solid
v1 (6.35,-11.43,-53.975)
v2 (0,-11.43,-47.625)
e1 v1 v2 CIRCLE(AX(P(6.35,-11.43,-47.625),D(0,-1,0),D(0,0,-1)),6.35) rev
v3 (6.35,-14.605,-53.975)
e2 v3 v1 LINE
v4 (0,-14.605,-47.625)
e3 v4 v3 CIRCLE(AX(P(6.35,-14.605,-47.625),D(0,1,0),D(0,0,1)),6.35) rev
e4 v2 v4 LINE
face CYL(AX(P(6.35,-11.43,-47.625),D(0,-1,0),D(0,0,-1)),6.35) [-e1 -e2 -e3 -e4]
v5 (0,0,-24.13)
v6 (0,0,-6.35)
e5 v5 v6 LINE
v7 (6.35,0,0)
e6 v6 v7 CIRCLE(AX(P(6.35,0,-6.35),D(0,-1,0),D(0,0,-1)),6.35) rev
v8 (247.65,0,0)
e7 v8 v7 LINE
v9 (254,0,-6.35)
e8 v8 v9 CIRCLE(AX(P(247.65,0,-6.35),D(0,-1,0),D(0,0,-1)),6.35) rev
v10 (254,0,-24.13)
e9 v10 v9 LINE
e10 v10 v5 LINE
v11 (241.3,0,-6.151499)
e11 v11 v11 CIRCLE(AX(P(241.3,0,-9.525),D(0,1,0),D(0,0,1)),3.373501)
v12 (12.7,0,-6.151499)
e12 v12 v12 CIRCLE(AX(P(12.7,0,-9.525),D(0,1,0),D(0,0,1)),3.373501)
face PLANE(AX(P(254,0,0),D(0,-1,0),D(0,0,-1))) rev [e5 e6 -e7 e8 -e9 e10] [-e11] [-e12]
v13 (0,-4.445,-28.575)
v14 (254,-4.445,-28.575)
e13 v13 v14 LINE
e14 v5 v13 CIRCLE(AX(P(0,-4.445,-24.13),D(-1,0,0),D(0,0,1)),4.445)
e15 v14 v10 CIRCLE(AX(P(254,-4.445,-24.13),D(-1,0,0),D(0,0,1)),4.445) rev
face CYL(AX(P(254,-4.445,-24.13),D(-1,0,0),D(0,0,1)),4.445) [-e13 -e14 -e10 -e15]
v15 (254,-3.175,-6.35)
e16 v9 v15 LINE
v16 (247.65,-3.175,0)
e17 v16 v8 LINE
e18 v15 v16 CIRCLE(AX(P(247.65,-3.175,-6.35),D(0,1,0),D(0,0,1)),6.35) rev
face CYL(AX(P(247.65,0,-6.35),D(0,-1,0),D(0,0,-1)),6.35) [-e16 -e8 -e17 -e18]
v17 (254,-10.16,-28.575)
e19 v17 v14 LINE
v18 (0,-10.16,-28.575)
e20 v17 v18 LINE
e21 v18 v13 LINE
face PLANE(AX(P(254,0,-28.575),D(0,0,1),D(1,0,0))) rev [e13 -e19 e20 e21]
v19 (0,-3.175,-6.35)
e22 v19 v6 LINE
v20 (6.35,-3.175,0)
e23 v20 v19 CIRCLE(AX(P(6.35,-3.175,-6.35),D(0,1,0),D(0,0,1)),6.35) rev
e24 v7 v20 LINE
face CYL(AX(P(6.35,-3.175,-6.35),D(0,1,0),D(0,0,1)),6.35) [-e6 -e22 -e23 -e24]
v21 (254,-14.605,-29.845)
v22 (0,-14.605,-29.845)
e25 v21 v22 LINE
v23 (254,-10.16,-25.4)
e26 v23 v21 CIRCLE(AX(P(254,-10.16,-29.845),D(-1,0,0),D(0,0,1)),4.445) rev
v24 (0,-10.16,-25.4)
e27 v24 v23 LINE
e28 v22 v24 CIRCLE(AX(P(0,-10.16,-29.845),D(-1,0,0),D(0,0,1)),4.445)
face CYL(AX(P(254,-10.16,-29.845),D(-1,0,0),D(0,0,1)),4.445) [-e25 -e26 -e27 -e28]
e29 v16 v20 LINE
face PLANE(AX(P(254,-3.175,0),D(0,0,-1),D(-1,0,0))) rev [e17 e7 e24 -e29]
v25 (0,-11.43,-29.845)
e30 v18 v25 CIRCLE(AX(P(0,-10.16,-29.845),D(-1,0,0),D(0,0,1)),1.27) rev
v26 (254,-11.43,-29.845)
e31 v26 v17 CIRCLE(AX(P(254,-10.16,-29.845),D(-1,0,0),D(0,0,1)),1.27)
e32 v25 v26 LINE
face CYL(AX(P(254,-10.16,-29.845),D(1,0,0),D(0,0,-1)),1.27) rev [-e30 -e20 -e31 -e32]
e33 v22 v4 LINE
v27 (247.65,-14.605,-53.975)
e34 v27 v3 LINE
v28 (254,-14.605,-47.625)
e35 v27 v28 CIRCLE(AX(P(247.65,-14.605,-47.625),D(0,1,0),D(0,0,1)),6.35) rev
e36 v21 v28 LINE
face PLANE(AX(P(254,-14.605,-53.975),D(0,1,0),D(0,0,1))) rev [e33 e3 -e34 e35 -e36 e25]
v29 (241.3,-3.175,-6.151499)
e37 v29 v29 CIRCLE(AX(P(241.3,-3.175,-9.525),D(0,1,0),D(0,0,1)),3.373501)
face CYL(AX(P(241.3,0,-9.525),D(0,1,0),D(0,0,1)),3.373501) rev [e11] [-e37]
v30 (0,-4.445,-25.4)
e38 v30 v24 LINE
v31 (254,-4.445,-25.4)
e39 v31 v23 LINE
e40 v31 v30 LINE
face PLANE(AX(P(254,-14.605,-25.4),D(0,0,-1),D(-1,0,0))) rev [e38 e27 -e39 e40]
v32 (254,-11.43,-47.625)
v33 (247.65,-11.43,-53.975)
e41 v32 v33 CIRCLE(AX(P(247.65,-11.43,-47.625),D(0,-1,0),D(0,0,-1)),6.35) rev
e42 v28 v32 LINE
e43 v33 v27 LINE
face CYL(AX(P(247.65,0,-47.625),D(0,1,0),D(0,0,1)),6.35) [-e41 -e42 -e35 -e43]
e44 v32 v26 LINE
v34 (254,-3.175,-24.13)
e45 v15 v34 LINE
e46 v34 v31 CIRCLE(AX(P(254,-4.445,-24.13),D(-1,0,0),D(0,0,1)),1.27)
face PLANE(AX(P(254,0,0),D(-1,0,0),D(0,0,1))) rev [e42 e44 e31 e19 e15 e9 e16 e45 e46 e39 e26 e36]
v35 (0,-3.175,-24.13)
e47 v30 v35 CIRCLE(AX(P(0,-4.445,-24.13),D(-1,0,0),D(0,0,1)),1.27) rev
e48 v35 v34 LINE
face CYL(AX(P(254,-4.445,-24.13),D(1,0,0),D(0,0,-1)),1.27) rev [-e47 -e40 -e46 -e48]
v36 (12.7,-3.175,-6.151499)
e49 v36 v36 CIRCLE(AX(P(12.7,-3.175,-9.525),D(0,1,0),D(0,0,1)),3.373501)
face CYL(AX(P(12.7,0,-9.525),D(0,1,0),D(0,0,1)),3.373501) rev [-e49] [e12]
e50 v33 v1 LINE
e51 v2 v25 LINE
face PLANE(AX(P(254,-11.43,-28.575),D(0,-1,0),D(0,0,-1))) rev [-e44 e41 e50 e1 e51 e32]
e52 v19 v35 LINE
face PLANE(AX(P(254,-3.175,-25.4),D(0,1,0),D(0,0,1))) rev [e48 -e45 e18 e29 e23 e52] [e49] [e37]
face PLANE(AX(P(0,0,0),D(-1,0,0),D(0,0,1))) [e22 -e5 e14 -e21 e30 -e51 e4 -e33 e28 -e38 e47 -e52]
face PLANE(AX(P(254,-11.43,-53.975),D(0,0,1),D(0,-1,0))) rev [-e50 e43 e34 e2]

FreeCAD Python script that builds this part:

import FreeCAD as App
import Part
import Sketcher
from FreeCAD import Vector
Q = App.Units.Quantity


def edges_at(feature, points):
    """Names of the edges that pass closest to the given points."""
    edges = feature.Shape.Edges
    near = lambda p: min(range(len(edges)), key=lambda i: edges[i].distToShape(Part.Vertex(*p))[0])
    return sorted({f"Edge{near(p) + 1}" for p in points})

doc = App.newDocument("Part")
params = doc.addObject("Spreadsheet::Sheet", "Params")
for row, (alias, value) in enumerate([
    ("sketch1_height", "1 in"),
    ("sketch1_width", "0.45 in"),
    ("sketch1_width2", "0.125 in"),
    ("sketch1_height2", "1.125 in"),
    ("pad1_length", "10 in"),
    ("fillet_radius", "0.05 in"),
    ("fillet2_radius", "0.175 in"),
    ("hole_diameter", "6.747002 mm"),
    ("fillet3_radius", "0.25 in"),
], start=1):
    params.set(f"A{row}", alias)
    params.set(f"B{row}", "=" + value)
    params.setAlias(f"B{row}", alias)

body = doc.addObject("PartDesign::Body", "Body")

# Sketch on YZ plane
sketch1 = body.newObject("Sketcher::SketchObject", "Sketch")
sketch1.AttachmentSupport = (doc.getObject("YZ_Plane"), [""])
sketch1.MapMode = "FlatFace"
sketch1.addGeometry([
    Part.LineSegment(Vector(0, -28.575, 0), Vector(0, 0, 0)),  # 0
    Part.LineSegment(Vector(0, 0, 0), Vector(-3.175, 0, 0)),  # 1
    Part.LineSegment(Vector(-3.175, 0, 0), Vector(-3.175, -25.4, 0)),  # 2
    Part.LineSegment(Vector(-3.175, -25.4, 0), Vector(-14.605, -25.4, 0)),  # 3
    Part.LineSegment(Vector(-14.605, -25.4, 0), Vector(-14.605, -53.975, 0)),  # 4
    Part.LineSegment(Vector(-14.605, -53.975, 0), Vector(-11.43, -53.975, 0)),  # 5
    Part.LineSegment(Vector(-11.43, -53.975, 0), Vector(-11.43, -28.575, 0)),  # 6
    Part.LineSegment(Vector(-11.43, -28.575, 0), Vector(0, -28.575, 0)),  # 7
], False)
sketch1.addConstraint([
    Sketcher.Constraint("Coincident", 0, 2, 1, 1),
    Sketcher.Constraint("Coincident", 1, 2, 2, 1),
    Sketcher.Constraint("Coincident", 2, 2, 3, 1),
    Sketcher.Constraint("Coincident", 3, 2, 4, 1),
    Sketcher.Constraint("Coincident", 4, 2, 5, 1),
    Sketcher.Constraint("Coincident", 5, 2, 6, 1),
    Sketcher.Constraint("Coincident", 6, 2, 7, 1),
    Sketcher.Constraint("Coincident", 7, 2, 0, 1),
    Sketcher.Constraint("Vertical", 0),
    Sketcher.Constraint("Horizontal", 1),
    Sketcher.Constraint("Vertical", 2),
    Sketcher.Constraint("Horizontal", 3),
    Sketcher.Constraint("Vertical", 4),
    Sketcher.Constraint("Horizontal", 5),
    Sketcher.Constraint("Vertical", 6),
    Sketcher.Constraint("Horizontal", 7),
    Sketcher.Constraint("Coincident", 0, 2, -1, 1),
    Sketcher.Constraint("Equal", 1, 5),
    Sketcher.Constraint("Equal", 0, 4),
    Sketcher.Constraint("DistanceY", 2, 2, 2, 1, Q("1 in")),
    Sketcher.Constraint("DistanceX", 3, 2, 3, 1, Q("0.45 in")),
    Sketcher.Constraint("DistanceX", 1, 2, 1, 1, Q("0.125 in")),
    Sketcher.Constraint("DistanceY", 0, 1, 0, 2, Q("1.125 in")),
])
sketch1.setExpression("Constraints[19]", "Params.sketch1_height")
sketch1.setExpression("Constraints[20]", "Params.sketch1_width")
sketch1.setExpression("Constraints[21]", "Params.sketch1_width2")
sketch1.setExpression("Constraints[22]", "Params.sketch1_height2")
pad1 = body.newObject("PartDesign::Pad", "Pad")
pad1.Profile = sketch1
pad1.setExpression("Length", "Params.pad1_length")
doc.recompute()

fillet = body.newObject("PartDesign::Fillet", "Fillet")
fillet.Base = (pad1, edges_at(pad1, [(127, -11.43, -28.575), (127, -3.175, -25.4)]))
fillet.setExpression("Radius", "Params.fillet_radius")
doc.recompute()

fillet2 = body.newObject("PartDesign::Fillet", "Fillet001")
fillet2.Base = (fillet, edges_at(fillet, [(127, 0, -28.575), (127, -14.605, -25.4)]))
fillet2.setExpression("Radius", "Params.fillet2_radius")

# Sketch on XZ plane
sketch2 = body.newObject("Sketcher::SketchObject", "Sketch001")
sketch2.AttachmentSupport = (doc.getObject("XZ_Plane"), [""])
sketch2.MapMode = "FlatFace"
sketch2.addGeometry([
    Part.Circle(Vector(241.3, -9.525, 0), Vector(0, 0, 1), 3.373501),
    Part.Circle(Vector(12.7, -9.525, 0), Vector(0, 0, 1), 3.373501),
], False)
sketch2.addConstraint([
    Sketcher.Constraint("Equal", 0, 1),
    Sketcher.Constraint("Horizontal", 0, 3, 1, 3),
    Sketcher.Constraint("DistanceX", 1, 3, 0, 3, Q("9 in")),
    Sketcher.Constraint("DistanceX", -1, 1, 0, 3, Q("9.5 in")),
    Sketcher.Constraint("DistanceY", 0, 3, -1, 1, Q("0.375 in")),
    Sketcher.Constraint("Diameter", 0, 6.747002),
])
doc.recompute()
hole = body.newObject("PartDesign::Hole", "Hole")
hole.Profile = sketch2
hole.ThreadType = "None"
hole.setExpression("Diameter", "Params.hole_diameter")
hole.DepthType = "ThroughAll"
hole.Reversed = True
doc.recompute()

fillet3 = body.newObject("PartDesign::Fillet", "Fillet002")
fillet3.Base = (hole, edges_at(hole, [
    (0, -1.587, 0),
    (254, -13.018, -53.975),
    (254, -1.587, 0),
    (0, -13.018, -53.975),
]))
fillet3.setExpression("Radius", "Params.fillet3_radius")

doc.recompute()
